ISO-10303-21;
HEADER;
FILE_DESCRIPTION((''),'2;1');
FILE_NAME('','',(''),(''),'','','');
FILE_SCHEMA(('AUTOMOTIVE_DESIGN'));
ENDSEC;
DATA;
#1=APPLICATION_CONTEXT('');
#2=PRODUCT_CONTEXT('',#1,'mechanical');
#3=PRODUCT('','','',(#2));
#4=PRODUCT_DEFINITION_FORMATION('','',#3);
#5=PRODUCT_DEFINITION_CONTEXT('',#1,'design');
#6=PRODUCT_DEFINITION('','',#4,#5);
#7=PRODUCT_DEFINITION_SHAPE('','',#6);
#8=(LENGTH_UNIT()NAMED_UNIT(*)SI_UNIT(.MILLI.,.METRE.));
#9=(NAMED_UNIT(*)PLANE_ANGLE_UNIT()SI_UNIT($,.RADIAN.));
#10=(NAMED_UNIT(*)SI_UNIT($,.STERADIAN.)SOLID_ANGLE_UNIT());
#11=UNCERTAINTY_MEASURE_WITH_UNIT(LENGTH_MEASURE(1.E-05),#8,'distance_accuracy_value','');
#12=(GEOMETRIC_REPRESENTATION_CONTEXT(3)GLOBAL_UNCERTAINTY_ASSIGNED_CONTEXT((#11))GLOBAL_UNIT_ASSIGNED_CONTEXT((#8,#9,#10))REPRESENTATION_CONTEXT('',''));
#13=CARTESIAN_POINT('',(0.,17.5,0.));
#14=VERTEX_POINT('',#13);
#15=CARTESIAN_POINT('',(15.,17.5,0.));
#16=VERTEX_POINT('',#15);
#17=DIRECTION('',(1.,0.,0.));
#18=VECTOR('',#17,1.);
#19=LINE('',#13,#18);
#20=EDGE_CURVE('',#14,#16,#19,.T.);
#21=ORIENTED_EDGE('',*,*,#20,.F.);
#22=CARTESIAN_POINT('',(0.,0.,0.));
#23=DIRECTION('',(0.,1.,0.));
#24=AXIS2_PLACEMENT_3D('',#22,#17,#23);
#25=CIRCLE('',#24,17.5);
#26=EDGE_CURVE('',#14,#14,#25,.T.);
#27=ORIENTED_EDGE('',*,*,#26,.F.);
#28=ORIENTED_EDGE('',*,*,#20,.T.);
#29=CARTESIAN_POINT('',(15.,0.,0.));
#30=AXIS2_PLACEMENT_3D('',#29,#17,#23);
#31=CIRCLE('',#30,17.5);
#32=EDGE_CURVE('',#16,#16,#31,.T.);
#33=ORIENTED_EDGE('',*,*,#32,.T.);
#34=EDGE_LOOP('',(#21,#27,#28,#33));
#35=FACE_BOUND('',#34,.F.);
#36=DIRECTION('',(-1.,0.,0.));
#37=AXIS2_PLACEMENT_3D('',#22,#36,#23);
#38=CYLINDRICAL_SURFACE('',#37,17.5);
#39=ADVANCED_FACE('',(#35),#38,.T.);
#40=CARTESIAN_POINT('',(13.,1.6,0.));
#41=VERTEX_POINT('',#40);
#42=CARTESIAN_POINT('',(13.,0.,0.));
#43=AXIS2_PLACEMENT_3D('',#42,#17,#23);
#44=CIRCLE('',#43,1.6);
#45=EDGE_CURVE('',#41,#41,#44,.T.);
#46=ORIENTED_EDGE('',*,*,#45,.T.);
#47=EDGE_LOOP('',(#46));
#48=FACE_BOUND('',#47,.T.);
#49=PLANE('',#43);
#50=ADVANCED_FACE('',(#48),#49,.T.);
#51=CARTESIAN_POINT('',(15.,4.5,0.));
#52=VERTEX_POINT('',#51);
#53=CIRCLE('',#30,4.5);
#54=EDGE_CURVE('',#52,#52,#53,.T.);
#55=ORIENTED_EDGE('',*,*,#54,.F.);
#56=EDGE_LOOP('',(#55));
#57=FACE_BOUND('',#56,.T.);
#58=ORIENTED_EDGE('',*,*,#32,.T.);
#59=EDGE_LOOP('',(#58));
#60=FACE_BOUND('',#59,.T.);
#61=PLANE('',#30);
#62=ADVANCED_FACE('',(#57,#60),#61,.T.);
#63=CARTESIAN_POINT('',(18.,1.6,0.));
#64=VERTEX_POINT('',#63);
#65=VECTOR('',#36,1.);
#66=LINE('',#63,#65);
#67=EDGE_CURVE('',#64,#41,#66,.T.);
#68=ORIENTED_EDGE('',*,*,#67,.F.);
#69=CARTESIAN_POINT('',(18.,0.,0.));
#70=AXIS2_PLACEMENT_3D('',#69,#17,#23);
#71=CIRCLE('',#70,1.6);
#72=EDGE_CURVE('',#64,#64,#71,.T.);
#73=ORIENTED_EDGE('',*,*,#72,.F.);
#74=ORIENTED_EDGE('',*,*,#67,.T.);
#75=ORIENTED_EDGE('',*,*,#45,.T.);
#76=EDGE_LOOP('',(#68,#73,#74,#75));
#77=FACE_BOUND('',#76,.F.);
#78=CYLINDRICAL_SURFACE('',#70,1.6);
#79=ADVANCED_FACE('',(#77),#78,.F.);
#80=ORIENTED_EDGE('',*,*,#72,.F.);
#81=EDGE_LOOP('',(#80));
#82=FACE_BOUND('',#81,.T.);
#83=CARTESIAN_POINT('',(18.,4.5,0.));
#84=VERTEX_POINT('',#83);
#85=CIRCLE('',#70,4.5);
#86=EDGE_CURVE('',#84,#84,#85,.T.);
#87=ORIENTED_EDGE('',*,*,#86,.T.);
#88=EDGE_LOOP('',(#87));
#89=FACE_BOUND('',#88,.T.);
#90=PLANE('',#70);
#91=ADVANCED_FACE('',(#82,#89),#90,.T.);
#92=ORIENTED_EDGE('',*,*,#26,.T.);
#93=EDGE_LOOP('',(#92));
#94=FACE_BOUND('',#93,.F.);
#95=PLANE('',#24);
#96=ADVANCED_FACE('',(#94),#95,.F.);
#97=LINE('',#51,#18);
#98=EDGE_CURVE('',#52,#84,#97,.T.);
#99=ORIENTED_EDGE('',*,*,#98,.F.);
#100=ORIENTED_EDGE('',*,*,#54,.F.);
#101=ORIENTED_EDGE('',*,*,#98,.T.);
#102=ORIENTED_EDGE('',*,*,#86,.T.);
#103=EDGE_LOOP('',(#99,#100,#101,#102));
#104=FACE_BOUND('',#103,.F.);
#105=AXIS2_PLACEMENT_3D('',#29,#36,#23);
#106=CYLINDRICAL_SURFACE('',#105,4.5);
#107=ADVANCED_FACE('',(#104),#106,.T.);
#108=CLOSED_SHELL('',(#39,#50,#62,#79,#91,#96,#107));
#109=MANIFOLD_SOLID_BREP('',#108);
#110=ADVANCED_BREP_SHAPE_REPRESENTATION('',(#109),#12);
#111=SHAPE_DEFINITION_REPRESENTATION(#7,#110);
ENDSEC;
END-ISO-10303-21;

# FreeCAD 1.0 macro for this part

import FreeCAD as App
import Part
import Sketcher
Q = App.Units.Quantity

doc = App.newDocument("Part")
body = doc.addObject("PartDesign::Body", "Body")

# Sketch on YZ plane
sketch1 = doc.addObject("Sketcher::SketchObject", "Sketch")
body.addObject(sketch1)
sketch1.AttachmentSupport = (doc.YZ_Plane, [""])
sketch1.MapMode = "FlatFace"
sketch1.addGeometry(Part.Circle(App.Vector(0, 0, 0), App.Vector(0, 0, 1), 18), False)
sketch1.addConstraint(Sketcher.Constraint("Coincident", 0, 3, -1, 1))
sketch1.addConstraint(Sketcher.Constraint("Diameter", 0, Q("35 mm")))
pad1 = doc.addObject("PartDesign::Pad", "Pad")
body.addObject(pad1)
pad1.Profile = sketch1
pad1.Length = 15

# Sketch on YZ plane
sketch2 = doc.addObject("Sketcher::SketchObject", "Sketch001")
body.addObject(sketch2)
sketch2.AttachmentSupport = (doc.YZ_Plane, [""])
sketch2.MapMode = "FlatFace"
sketch2.AttachmentOffset = App.Placement(App.Vector(0, 0, 15), App.Rotation())
sketch2.addGeometry(Part.Circle(App.Vector(0, 0, 0), App.Vector(0, 0, 1), 4.5), False)
sketch2.addConstraint(Sketcher.Constraint("Coincident", 0, 3, -1, 1))
sketch2.addConstraint(Sketcher.Constraint("Diameter", 0, Q("9 mm")))
pad2 = doc.addObject("PartDesign::Pad", "Pad001")
body.addObject(pad2)
pad2.Profile = sketch2
pad2.Length = 3

# Sketch on YZ plane
sketch3 = doc.addObject("Sketcher::SketchObject", "Sketch002")
body.addObject(sketch3)
sketch3.AttachmentSupport = (doc.YZ_Plane, [""])
sketch3.MapMode = "FlatFace"
sketch3.AttachmentOffset = App.Placement(App.Vector(0, 0, 18), App.Rotation())
sketch3.addGeometry(Part.Circle(App.Vector(0, 0, 0), App.Vector(0, 0, 1), 1.6), False)
sketch3.addConstraint(Sketcher.Constraint("Coincident", 0, 3, -1, 1))
sketch3.addConstraint(Sketcher.Constraint("Diameter", 0, Q("3.2 mm")))
pocket1 = doc.addObject("PartDesign::Pocket", "Pocket")
body.addObject(pocket1)
pocket1.Profile = sketch3
pocket1.Length = 5

doc.recompute()
